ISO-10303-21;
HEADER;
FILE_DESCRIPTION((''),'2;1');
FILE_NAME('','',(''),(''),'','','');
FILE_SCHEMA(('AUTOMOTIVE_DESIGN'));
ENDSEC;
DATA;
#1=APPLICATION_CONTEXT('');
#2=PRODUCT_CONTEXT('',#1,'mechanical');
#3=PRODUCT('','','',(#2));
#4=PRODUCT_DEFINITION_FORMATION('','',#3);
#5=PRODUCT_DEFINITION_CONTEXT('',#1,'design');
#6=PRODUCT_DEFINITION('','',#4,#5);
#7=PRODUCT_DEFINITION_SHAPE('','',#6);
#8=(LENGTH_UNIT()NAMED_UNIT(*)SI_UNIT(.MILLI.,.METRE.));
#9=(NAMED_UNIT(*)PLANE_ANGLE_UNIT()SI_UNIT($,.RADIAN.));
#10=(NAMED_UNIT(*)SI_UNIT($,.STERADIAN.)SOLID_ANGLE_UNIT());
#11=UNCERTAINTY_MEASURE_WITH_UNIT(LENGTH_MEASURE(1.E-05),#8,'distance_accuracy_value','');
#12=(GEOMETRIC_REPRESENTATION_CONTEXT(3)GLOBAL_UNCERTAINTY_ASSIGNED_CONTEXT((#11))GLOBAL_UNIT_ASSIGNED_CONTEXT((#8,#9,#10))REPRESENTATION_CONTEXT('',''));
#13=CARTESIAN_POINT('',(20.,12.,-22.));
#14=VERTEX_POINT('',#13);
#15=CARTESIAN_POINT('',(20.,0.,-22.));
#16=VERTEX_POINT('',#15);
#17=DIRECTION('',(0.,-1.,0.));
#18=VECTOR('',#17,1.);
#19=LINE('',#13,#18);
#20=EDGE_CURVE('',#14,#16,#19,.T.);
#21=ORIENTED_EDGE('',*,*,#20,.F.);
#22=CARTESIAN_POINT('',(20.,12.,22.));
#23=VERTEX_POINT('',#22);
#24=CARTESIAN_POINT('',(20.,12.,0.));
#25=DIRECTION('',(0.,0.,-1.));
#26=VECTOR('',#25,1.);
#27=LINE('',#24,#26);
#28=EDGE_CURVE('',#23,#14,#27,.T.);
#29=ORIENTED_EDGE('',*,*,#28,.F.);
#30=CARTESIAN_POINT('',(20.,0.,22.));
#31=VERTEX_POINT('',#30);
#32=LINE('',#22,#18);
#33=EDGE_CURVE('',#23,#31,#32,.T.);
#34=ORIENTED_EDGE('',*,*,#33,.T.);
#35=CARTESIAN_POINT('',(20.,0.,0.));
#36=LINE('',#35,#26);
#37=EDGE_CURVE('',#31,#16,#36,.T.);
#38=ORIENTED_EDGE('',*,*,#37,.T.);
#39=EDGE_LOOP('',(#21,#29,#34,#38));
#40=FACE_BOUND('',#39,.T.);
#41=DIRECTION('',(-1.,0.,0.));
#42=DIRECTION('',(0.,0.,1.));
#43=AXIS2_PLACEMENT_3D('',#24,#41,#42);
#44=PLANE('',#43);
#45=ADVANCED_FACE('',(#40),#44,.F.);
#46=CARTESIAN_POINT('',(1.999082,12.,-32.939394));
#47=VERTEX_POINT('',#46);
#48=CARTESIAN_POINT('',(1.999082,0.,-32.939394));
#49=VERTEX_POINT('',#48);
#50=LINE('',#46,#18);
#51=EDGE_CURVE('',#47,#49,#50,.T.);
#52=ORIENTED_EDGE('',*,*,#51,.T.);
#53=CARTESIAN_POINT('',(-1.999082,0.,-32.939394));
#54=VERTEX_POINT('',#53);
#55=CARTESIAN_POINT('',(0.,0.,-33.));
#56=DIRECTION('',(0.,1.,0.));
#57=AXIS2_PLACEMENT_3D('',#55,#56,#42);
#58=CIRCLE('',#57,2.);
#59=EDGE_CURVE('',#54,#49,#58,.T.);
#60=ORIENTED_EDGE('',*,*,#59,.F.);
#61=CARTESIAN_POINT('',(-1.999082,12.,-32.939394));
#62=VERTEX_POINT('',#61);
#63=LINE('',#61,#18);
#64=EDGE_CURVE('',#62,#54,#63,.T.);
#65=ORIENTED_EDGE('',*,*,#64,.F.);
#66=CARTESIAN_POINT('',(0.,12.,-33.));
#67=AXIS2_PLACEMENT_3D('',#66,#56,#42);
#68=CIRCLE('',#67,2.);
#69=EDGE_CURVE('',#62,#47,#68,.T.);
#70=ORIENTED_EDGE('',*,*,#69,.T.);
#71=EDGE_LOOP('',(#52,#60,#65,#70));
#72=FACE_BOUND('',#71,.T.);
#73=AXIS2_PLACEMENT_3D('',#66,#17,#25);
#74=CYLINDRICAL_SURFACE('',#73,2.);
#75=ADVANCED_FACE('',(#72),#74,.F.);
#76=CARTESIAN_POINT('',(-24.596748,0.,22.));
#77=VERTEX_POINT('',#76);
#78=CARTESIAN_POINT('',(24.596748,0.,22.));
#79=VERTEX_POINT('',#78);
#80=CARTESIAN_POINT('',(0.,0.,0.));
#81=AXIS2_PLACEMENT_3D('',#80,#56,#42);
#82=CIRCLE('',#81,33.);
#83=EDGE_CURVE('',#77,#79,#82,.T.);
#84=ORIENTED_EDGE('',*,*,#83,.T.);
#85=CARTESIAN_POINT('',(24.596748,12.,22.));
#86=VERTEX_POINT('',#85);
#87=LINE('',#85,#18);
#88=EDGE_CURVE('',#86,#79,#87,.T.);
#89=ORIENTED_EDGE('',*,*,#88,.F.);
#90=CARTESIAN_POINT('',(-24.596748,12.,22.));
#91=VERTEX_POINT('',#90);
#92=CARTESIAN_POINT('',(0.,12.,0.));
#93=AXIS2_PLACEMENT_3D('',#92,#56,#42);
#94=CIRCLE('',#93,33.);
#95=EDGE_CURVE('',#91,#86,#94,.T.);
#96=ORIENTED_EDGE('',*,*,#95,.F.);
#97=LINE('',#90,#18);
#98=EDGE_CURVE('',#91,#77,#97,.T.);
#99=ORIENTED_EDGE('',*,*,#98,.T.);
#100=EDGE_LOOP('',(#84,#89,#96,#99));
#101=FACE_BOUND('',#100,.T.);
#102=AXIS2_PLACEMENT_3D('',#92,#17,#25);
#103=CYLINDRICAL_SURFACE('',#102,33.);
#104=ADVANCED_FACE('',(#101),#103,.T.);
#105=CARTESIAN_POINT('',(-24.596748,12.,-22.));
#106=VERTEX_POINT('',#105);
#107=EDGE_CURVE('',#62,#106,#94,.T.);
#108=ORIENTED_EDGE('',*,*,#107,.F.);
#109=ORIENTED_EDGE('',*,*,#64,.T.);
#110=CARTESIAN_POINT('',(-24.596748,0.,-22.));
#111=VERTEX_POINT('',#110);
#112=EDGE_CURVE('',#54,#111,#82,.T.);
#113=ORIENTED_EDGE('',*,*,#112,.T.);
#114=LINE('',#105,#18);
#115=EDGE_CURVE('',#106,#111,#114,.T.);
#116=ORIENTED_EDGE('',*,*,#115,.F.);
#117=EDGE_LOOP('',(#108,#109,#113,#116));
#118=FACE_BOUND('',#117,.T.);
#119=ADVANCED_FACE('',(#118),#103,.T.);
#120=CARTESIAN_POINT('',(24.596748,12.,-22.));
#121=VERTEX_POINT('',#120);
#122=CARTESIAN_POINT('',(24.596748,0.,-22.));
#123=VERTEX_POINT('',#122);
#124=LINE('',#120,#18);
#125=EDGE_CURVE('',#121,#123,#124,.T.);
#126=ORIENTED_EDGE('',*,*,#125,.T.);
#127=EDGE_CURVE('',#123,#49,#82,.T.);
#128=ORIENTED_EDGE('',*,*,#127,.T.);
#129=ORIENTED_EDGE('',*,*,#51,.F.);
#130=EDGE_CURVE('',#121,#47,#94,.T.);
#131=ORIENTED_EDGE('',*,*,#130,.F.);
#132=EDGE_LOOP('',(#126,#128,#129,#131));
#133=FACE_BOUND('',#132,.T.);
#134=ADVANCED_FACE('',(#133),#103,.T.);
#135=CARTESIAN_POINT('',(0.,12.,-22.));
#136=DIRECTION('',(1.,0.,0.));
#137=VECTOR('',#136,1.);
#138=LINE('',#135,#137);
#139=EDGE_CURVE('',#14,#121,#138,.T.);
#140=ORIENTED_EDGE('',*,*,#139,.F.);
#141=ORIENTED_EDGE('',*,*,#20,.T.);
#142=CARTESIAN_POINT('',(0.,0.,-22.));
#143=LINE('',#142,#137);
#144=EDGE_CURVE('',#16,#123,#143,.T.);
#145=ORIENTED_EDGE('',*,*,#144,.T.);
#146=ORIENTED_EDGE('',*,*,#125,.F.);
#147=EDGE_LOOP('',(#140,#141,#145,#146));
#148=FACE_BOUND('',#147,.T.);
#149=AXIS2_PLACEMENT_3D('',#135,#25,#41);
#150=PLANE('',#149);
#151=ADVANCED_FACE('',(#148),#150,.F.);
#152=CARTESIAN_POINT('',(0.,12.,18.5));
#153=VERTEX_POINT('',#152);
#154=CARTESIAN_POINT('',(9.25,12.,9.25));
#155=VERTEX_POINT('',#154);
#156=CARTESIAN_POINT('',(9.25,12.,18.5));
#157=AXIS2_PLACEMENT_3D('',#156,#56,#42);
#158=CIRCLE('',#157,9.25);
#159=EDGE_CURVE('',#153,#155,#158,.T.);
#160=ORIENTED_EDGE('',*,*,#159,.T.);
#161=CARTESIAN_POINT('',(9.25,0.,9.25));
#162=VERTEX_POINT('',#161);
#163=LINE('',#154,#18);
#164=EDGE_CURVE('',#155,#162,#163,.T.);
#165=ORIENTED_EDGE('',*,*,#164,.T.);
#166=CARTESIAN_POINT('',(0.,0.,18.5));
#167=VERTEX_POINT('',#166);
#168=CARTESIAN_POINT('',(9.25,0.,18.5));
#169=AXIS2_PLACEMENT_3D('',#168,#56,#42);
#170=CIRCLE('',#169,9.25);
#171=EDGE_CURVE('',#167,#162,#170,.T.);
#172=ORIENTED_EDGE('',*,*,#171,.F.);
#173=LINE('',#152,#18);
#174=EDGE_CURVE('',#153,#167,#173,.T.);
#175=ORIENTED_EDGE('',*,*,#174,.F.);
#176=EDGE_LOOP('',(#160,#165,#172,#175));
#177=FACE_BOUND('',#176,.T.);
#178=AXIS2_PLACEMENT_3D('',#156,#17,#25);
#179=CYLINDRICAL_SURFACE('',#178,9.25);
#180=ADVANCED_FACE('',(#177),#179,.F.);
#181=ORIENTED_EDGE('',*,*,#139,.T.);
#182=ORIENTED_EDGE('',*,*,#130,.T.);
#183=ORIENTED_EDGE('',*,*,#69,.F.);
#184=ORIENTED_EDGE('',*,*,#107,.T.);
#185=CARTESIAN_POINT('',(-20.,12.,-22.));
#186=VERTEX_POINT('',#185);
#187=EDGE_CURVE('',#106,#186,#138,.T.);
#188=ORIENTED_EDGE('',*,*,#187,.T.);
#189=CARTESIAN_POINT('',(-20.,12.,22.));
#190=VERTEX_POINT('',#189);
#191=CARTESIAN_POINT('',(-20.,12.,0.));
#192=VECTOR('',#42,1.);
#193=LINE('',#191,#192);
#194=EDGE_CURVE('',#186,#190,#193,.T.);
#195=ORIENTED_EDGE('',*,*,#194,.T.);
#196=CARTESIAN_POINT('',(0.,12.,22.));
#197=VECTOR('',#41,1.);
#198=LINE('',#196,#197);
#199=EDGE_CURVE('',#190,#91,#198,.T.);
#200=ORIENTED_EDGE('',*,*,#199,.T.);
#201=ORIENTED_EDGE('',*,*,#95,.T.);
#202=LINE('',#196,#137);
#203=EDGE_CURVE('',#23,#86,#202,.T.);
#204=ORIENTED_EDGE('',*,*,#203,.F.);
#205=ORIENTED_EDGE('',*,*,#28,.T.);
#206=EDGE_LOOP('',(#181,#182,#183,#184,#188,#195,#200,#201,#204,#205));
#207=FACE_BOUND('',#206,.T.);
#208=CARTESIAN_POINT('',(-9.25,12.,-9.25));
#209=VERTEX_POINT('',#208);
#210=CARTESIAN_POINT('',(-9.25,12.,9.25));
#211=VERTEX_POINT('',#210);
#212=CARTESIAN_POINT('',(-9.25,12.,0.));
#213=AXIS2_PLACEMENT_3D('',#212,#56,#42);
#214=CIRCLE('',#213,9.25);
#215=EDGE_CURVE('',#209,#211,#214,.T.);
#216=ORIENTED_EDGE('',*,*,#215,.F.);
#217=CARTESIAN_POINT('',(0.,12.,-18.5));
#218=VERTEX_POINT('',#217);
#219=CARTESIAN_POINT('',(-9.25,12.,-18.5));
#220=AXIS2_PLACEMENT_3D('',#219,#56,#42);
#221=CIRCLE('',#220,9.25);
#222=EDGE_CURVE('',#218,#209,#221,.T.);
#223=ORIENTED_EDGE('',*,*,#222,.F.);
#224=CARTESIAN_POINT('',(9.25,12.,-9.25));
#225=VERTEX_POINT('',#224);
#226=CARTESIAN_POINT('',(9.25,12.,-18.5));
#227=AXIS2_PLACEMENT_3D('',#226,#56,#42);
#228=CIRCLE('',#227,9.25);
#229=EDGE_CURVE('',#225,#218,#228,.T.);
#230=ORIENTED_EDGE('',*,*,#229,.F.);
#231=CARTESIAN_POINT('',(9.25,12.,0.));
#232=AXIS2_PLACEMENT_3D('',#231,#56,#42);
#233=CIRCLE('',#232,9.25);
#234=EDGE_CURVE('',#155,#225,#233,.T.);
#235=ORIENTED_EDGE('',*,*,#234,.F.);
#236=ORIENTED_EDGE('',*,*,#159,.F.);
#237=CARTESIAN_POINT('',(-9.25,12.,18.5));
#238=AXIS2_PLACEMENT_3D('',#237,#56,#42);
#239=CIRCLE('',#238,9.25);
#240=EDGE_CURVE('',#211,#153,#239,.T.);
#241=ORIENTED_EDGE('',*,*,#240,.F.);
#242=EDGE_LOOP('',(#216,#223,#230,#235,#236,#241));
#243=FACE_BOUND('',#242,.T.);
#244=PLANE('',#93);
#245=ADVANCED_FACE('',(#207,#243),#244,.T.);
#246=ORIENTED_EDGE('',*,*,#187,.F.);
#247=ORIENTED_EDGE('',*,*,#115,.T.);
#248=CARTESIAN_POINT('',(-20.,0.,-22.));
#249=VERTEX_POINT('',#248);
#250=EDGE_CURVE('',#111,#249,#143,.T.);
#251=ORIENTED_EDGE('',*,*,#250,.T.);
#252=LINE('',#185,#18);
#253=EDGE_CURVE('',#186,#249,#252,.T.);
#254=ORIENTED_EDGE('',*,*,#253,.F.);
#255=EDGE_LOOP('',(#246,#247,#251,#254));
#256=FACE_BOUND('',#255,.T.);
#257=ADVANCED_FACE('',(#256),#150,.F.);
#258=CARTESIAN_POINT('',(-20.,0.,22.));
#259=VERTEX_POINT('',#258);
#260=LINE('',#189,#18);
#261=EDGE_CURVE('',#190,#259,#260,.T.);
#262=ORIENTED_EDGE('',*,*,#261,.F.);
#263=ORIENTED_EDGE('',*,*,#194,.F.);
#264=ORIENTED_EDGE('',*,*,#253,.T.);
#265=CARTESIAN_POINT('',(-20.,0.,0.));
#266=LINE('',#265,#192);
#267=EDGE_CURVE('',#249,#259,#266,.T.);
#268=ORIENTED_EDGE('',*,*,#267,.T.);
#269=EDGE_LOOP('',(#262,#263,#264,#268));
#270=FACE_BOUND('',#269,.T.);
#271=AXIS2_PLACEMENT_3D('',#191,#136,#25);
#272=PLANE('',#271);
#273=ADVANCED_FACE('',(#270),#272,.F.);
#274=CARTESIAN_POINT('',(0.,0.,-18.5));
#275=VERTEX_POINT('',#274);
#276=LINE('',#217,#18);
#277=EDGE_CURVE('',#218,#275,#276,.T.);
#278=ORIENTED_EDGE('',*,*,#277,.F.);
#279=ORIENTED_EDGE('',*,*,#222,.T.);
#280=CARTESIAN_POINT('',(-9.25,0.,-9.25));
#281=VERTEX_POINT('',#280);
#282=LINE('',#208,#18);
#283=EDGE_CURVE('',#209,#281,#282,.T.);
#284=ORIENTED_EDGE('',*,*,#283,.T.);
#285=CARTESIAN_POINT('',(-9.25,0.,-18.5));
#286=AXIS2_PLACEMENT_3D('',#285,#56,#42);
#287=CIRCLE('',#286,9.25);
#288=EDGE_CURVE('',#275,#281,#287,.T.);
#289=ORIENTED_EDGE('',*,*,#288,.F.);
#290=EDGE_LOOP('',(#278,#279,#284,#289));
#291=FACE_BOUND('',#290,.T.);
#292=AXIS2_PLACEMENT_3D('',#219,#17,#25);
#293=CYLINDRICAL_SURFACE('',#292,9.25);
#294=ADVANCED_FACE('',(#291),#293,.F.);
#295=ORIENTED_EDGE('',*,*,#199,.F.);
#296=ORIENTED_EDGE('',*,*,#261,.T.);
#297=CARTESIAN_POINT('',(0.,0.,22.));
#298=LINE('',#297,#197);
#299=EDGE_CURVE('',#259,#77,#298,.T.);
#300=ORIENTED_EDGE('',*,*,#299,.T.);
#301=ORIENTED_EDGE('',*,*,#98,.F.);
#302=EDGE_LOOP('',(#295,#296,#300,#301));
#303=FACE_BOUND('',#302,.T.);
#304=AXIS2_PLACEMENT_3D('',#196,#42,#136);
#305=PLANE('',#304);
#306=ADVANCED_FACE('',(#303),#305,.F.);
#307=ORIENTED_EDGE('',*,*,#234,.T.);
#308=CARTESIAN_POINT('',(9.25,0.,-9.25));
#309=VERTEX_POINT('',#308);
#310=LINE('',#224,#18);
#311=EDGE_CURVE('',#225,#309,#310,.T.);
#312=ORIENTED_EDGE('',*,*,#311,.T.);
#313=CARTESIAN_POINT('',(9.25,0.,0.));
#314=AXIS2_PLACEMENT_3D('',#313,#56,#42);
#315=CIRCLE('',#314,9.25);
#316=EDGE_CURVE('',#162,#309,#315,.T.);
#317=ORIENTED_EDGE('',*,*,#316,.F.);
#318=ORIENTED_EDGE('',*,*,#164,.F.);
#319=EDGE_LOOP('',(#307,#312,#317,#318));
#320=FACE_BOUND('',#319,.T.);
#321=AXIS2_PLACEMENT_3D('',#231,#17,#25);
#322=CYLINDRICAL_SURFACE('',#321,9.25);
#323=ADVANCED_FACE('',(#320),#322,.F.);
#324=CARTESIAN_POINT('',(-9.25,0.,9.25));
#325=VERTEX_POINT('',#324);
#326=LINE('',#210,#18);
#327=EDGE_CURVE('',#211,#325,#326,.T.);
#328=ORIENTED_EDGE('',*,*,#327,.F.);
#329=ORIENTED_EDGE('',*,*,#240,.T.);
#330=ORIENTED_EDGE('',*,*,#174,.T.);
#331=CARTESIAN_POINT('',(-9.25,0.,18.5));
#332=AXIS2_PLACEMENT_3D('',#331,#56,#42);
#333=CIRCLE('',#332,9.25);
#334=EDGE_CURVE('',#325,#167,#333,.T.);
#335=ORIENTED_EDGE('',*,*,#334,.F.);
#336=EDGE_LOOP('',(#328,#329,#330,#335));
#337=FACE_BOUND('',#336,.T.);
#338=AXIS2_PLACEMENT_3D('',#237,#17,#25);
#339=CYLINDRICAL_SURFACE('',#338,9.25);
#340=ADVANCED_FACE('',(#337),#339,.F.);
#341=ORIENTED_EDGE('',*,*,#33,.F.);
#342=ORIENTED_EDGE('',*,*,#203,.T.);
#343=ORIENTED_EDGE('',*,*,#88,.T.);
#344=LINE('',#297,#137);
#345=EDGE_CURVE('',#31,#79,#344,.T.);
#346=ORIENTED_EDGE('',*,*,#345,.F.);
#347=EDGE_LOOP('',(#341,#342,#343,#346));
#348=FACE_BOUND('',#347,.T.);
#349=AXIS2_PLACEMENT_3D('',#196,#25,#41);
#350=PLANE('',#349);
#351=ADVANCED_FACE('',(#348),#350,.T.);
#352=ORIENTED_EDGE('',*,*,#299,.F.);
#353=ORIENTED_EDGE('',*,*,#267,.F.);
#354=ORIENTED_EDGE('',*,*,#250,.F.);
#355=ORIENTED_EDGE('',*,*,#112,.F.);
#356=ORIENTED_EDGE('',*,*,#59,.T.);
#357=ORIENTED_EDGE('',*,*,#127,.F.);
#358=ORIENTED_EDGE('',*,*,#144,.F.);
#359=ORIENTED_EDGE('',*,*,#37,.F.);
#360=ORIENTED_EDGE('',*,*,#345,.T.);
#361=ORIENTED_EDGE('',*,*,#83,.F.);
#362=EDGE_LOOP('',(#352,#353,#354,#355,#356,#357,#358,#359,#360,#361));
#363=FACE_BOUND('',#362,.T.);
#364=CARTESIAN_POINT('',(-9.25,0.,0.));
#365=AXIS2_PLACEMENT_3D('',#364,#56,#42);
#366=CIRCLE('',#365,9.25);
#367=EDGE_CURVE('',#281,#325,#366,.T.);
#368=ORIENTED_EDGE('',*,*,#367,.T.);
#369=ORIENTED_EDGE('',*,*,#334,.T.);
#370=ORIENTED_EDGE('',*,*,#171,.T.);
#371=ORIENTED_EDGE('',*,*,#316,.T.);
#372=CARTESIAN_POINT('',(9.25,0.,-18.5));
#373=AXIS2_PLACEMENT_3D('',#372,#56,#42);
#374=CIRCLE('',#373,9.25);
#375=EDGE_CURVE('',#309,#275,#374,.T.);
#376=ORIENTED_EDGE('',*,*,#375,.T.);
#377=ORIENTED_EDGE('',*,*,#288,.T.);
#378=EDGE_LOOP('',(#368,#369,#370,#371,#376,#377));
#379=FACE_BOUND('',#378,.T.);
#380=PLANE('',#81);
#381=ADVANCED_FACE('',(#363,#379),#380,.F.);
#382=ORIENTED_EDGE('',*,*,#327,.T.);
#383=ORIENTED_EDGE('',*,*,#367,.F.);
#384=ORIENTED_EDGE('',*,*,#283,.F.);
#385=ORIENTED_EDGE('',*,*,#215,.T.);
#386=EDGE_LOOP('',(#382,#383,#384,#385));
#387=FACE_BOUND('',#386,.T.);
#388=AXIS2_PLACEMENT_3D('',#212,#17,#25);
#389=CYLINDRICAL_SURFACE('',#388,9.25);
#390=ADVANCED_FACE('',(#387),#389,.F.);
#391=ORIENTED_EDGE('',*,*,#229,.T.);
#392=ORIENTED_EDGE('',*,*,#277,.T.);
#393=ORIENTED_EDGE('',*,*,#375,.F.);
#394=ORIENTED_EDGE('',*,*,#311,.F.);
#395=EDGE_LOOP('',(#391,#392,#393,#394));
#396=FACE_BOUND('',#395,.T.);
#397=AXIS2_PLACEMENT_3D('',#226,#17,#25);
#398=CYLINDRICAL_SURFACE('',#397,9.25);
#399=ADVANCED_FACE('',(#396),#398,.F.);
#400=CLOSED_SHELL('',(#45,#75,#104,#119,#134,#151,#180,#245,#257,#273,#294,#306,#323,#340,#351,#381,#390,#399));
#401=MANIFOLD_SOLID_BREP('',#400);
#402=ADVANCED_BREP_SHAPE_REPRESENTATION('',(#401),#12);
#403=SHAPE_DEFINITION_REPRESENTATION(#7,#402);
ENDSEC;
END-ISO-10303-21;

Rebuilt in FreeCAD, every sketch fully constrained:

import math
import FreeCAD as App
import Part
import Sketcher

V = App.Vector

doc = App.newDocument("Part")
body = doc.addObject("PartDesign::Body", "Body")

sketch1 = body.newObject("Sketcher::SketchObject", "Sketch")
sketch1.AttachmentSupport = (doc.getObject("XZ_Plane"), [""])
sketch1.MapMode = "FlatFace"
sketch1.addGeometry(Part.LineSegment(V(-20, 22, 0), V(-24.6, 22, 0)), False)
sketch1.addGeometry(Part.ArcOfCircle(Part.Circle(V(0, 0, 0), V(0, 0, 1), 33), math.radians(42), math.radians(138)), False)
sketch1.addGeometry(Part.LineSegment(V(24.6, 22, 0), V(20, 22, 0)), False)
sketch1.addGeometry(Part.LineSegment(V(20, 22, 0), V(20, -22, 0)), False)
sketch1.addGeometry(Part.LineSegment(V(20, -22, 0), V(24.6, -22, 0)), False)
sketch1.addGeometry(Part.ArcOfCircle(Part.Circle(V(0, 0, 0), V(0, 0, 1), 33), math.radians(-87), math.radians(-42)), False)
sketch1.addGeometry(Part.ArcOfCircle(Part.Circle(V(0, -33, 0), V(0, 0, 1), 2), math.radians(2), math.radians(178)), False)
sketch1.addGeometry(Part.ArcOfCircle(Part.Circle(V(0, 0, 0), V(0, 0, 1), 33), math.radians(-138), math.radians(-93)), False)
sketch1.addGeometry(Part.LineSegment(V(-24.6, -22, 0), V(-20, -22, 0)), False)
sketch1.addGeometry(Part.LineSegment(V(-20, -22, 0), V(-20, 22, 0)), False)
sketch1.addGeometry(Part.ArcOfCircle(Part.Circle(V(9.2, 0, 0), V(0, 0, 1), 9.2), math.radians(0), math.radians(90)), False)
sketch1.addGeometry(Part.ArcOfCircle(Part.Circle(V(9.2, 18.5, 0), V(0, 0, 1), 9.2), math.radians(-90), math.radians(180)), False)
sketch1.addGeometry(Part.ArcOfCircle(Part.Circle(V(-9.2, 18.5, 0), V(0, 0, 1), 9.2), math.radians(0), math.radians(270)), False)
sketch1.addGeometry(Part.ArcOfCircle(Part.Circle(V(-9.2, 0, 0), V(0, 0, 1), 9.2), math.radians(90), math.radians(180)), False)
sketch1.addGeometry(Part.ArcOfCircle(Part.Circle(V(-9.2, 0, 0), V(0, 0, 1), 9.2), math.radians(180), math.radians(270)), False)
sketch1.addGeometry(Part.ArcOfCircle(Part.Circle(V(-9.2, -18.5, 0), V(0, 0, 1), 9.2), math.radians(90), math.radians(360)), False)
sketch1.addGeometry(Part.ArcOfCircle(Part.Circle(V(9.2, -18.5, 0), V(0, 0, 1), 9.2), math.radians(180), math.radians(450)), False)
sketch1.addGeometry(Part.ArcOfCircle(Part.Circle(V(9.2, 0, 0), V(0, 0, 1), 9.2), math.radians(-90), math.radians(0)), False)
sketch1.addConstraint(Sketcher.Constraint("Coincident", 0, 2, 1, 2))
sketch1.addConstraint(Sketcher.Constraint("Coincident", 1, 1, 2, 1))
sketch1.addConstraint(Sketcher.Constraint("Coincident", 2, 2, 3, 1))
sketch1.addConstraint(Sketcher.Constraint("Coincident", 3, 2, 4, 1))
sketch1.addConstraint(Sketcher.Constraint("Coincident", 4, 2, 5, 2))
sketch1.addConstraint(Sketcher.Constraint("Coincident", 5, 1, 6, 1))
sketch1.addConstraint(Sketcher.Constraint("Coincident", 6, 2, 7, 2))
sketch1.addConstraint(Sketcher.Constraint("Coincident", 7, 1, 8, 1))
sketch1.addConstraint(Sketcher.Constraint("Coincident", 8, 2, 9, 1))
sketch1.addConstraint(Sketcher.Constraint("Coincident", 9, 2, 0, 1))
sketch1.addConstraint(Sketcher.Constraint("Tangent", 10, 2, 11, 1))
sketch1.addConstraint(Sketcher.Constraint("Tangent", 11, 2, 12, 1))
sketch1.addConstraint(Sketcher.Constraint("Tangent", 12, 2, 13, 1))
sketch1.addConstraint(Sketcher.Constraint("Tangent", 13, 2, 14, 1))
sketch1.addConstraint(Sketcher.Constraint("Tangent", 14, 2, 15, 1))
sketch1.addConstraint(Sketcher.Constraint("Tangent", 15, 2, 16, 1))
sketch1.addConstraint(Sketcher.Constraint("Tangent", 16, 2, 17, 1))
sketch1.addConstraint(Sketcher.Constraint("Tangent", 17, 2, 10, 1))
sketch1.addConstraint(Sketcher.Constraint("Horizontal", 0))
sketch1.addConstraint(Sketcher.Constraint("Horizontal", 2))
sketch1.addConstraint(Sketcher.Constraint("Vertical", 3))
sketch1.addConstraint(Sketcher.Constraint("Horizontal", 4))
sketch1.addConstraint(Sketcher.Constraint("Horizontal", 8))
sketch1.addConstraint(Sketcher.Constraint("Vertical", 9))
sketch1.addConstraint(Sketcher.Constraint("Coincident", 1, 3, -1, 1))
sketch1.addConstraint(Sketcher.Constraint("Coincident", 5, 3, -1, 1))
sketch1.addConstraint(Sketcher.Constraint("Coincident", 7, 3, -1, 1))
sketch1.addConstraint(Sketcher.Constraint("Equal", 1, 5))
sketch1.addConstraint(Sketcher.Constraint("Equal", 5, 7))
sketch1.addConstraint(Sketcher.Constraint("Equal", 10, 11))
sketch1.addConstraint(Sketcher.Constraint("Equal", 11, 12))
sketch1.addConstraint(Sketcher.Constraint("Equal", 12, 13))
sketch1.addConstraint(Sketcher.Constraint("Equal", 13, 14))
sketch1.addConstraint(Sketcher.Constraint("Equal", 14, 15))
sketch1.addConstraint(Sketcher.Constraint("Equal", 15, 16))
sketch1.addConstraint(Sketcher.Constraint("Equal", 16, 17))
sketch1.addConstraint(Sketcher.Constraint("Symmetric", 10, 3, 13, 3, -1, 1))
sketch1.addConstraint(Sketcher.Constraint("Symmetric", 2, 2, 8, 2, -1, 1))
sketch1.addConstraint(Sketcher.Constraint("Symmetric", 11, 3, 12, 3, -2))
sketch1.addConstraint(Sketcher.Constraint("PointOnObject", 6, 3, -2))
sketch1.addConstraint(Sketcher.Constraint("PointOnObject", 13, 2, -1))
sketch1.addConstraint(Sketcher.Constraint("PointOnObject", 15, 2, -2))
sketch1.addConstraint(Sketcher.Constraint("PointOnObject", 17, 2, -1))
sketch1.addConstraint(Sketcher.Constraint("Horizontal", 0, 2, 1, 1))
sketch1.addConstraint(Sketcher.Constraint("Horizontal", 4, 2, 7, 1))
sketch1.addConstraint(Sketcher.Constraint("Vertical", 10, 3, 11, 3))
sketch1.addConstraint(Sketcher.Constraint("Radius", 1, 33.0))
sketch1.addConstraint(Sketcher.Constraint("Radius", 6, 2.0))
sketch1.addConstraint(Sketcher.Constraint("DistanceY", 3, 2, 3, 1, 44.0))
sketch1.addConstraint(Sketcher.Constraint("Radius", 10, 9.25))
sketch1.addConstraint(Sketcher.Constraint("DistanceY", 6, 3, -1, 1, 33.0))
sketch1.addConstraint(Sketcher.Constraint("DistanceX", -1, 1, 2, 2, 20.0))
pad1 = body.newObject("PartDesign::Pad", "Pad")
pad1.Profile = sketch1
pad1.Length = 12
pad1.Reversed = True

doc.recompute()
